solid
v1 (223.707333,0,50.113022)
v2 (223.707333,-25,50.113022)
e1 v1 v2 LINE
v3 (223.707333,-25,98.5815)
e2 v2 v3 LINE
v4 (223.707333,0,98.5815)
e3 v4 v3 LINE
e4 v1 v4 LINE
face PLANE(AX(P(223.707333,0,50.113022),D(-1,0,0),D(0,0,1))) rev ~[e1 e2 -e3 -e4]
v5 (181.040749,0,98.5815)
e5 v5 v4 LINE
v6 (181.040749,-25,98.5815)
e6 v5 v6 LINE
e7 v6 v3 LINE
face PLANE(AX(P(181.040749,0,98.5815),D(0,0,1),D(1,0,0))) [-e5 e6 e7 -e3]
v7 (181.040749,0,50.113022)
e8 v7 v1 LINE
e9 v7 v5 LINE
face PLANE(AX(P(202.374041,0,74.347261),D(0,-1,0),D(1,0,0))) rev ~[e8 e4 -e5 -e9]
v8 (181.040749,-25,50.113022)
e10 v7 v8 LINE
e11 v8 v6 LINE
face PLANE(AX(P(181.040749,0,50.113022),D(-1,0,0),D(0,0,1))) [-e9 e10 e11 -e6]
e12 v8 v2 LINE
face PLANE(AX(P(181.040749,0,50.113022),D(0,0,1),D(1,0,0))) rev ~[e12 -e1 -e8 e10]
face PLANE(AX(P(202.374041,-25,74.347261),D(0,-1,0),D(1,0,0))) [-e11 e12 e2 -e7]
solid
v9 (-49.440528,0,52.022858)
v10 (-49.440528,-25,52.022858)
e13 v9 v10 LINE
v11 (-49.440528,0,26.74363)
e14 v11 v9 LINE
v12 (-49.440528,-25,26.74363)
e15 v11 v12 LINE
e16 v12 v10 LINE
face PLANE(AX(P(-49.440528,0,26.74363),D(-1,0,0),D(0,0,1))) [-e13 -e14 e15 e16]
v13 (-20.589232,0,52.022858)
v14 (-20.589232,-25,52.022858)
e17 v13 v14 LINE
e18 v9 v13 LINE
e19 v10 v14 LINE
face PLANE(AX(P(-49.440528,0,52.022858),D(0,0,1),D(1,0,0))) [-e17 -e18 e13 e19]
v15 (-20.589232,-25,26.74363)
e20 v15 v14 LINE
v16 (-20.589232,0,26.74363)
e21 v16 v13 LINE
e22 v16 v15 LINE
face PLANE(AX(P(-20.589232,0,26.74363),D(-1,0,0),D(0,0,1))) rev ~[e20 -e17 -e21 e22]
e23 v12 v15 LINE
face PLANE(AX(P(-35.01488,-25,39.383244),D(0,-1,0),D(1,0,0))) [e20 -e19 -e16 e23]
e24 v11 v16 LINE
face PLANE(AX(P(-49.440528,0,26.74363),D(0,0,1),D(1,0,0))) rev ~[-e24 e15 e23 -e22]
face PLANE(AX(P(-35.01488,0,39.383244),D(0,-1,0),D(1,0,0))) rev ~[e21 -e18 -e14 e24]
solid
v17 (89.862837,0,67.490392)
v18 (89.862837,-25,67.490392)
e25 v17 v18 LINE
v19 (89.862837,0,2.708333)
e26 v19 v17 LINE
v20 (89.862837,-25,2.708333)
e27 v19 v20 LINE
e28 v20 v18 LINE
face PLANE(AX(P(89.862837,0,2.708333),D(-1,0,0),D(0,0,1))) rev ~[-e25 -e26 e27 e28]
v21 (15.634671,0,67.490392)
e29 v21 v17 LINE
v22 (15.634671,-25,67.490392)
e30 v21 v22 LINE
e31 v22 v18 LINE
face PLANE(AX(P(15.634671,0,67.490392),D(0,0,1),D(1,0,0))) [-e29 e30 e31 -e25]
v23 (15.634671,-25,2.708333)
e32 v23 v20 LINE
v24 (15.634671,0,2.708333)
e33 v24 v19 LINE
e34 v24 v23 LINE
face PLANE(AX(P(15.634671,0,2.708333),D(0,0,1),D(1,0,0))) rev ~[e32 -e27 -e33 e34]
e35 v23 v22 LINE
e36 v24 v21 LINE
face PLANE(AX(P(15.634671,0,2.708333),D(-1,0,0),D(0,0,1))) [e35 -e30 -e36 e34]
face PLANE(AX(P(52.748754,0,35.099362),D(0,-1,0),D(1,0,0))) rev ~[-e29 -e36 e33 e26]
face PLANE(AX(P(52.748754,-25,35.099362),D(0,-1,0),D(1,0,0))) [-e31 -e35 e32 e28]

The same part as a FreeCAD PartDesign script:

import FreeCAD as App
import Part
import Sketcher
from FreeCAD import Vector

doc = App.newDocument("Part")
body = doc.addObject("PartDesign::Body", "Body")

# Sketch on XZ plane
sketch1 = body.newObject("Sketcher::SketchObject", "Sketch")
sketch1.AttachmentSupport = (doc.getObject("XZ_Plane"), [""])
sketch1.MapMode = "FlatFace"
sketch1.addGeometry(Part.LineSegment(Vector(-49, 52, 0), Vector(-49, 27, 0)), False)
sketch1.addGeometry(Part.LineSegment(Vector(-49, 27, 0), Vector(-21, 27, 0)), False)
sketch1.addGeometry(Part.LineSegment(Vector(-21, 27, 0), Vector(-21, 52, 0)), False)
sketch1.addGeometry(Part.LineSegment(Vector(-21, 52, 0), Vector(-49, 52, 0)), False)
sketch1.addConstraint(Sketcher.Constraint("Coincident", 0, 2, 1, 1))
sketch1.addConstraint(Sketcher.Constraint("Coincident", 1, 2, 2, 1))
sketch1.addConstraint(Sketcher.Constraint("Coincident", 2, 2, 3, 1))
sketch1.addConstraint(Sketcher.Constraint("Coincident", 3, 2, 0, 1))
sketch1.addConstraint(Sketcher.Constraint("Vertical", 0))
sketch1.addConstraint(Sketcher.Constraint("Horizontal", 1))
sketch1.addConstraint(Sketcher.Constraint("Vertical", 2))
sketch1.addConstraint(Sketcher.Constraint("Horizontal", 3))
sketch1.addConstraint(Sketcher.Constraint("DistanceY", 0, 2, 0, 1, 25.279229))
sketch1.addConstraint(Sketcher.Constraint("DistanceX", 1, 1, 1, 2, 28.851297))
sketch1.addConstraint(Sketcher.Constraint("DistanceX", 0, 2, -1, 1, 49.440528))
sketch1.addConstraint(Sketcher.Constraint("DistanceY", -1, 1, 0, 2, 26.74363))
pad1 = body.newObject("PartDesign::Pad", "Pad")
pad1.Profile = sketch1
pad1.Length = 25
body2 = doc.addObject("PartDesign::Body", "Body001")
body2.AllowCompound = True

# Sketch on XZ plane
sketch2 = body2.newObject("Sketcher::SketchObject", "Sketch001")
sketch2.AttachmentSupport = (doc.getObject("XZ_Plane001"), [""])
sketch2.MapMode = "FlatFace"
sketch2.addGeometry(Part.LineSegment(Vector(16, 67, 0), Vector(16, 3, 0)), False)
sketch2.addGeometry(Part.LineSegment(Vector(16, 3, 0), Vector(90, 3, 0)), False)
sketch2.addGeometry(Part.LineSegment(Vector(90, 3, 0), Vector(90, 67, 0)), False)
sketch2.addGeometry(Part.LineSegment(Vector(90, 67, 0), Vector(16, 67, 0)), False)
sketch2.addGeometry(Part.LineSegment(Vector(181, 99, 0), Vector(181, 50, 0)), False)
sketch2.addGeometry(Part.LineSegment(Vector(181, 50, 0), Vector(224, 50, 0)), False)
sketch2.addGeometry(Part.LineSegment(Vector(224, 50, 0), Vector(224, 99, 0)), False)
sketch2.addGeometry(Part.LineSegment(Vector(224, 99, 0), Vector(181, 99, 0)), False)
sketch2.addConstraint(Sketcher.Constraint("Coincident", 0, 2, 1, 1))
sketch2.addConstraint(Sketcher.Constraint("Coincident", 1, 2, 2, 1))
sketch2.addConstraint(Sketcher.Constraint("Coincident", 2, 2, 3, 1))
sketch2.addConstraint(Sketcher.Constraint("Coincident", 3, 2, 0, 1))
sketch2.addConstraint(Sketcher.Constraint("Coincident", 4, 2, 5, 1))
sketch2.addConstraint(Sketcher.Constraint("Coincident", 5, 2, 6, 1))
sketch2.addConstraint(Sketcher.Constraint("Coincident", 6, 2, 7, 1))
sketch2.addConstraint(Sketcher.Constraint("Coincident", 7, 2, 4, 1))
sketch2.addConstraint(Sketcher.Constraint("Vertical", 0))
sketch2.addConstraint(Sketcher.Constraint("Horizontal", 1))
sketch2.addConstraint(Sketcher.Constraint("Vertical", 2))
sketch2.addConstraint(Sketcher.Constraint("Horizontal", 3))
sketch2.addConstraint(Sketcher.Constraint("Vertical", 4))
sketch2.addConstraint(Sketcher.Constraint("Horizontal", 5))
sketch2.addConstraint(Sketcher.Constraint("Vertical", 6))
sketch2.addConstraint(Sketcher.Constraint("Horizontal", 7))
sketch2.addConstraint(Sketcher.Constraint("DistanceY", 0, 2, 0, 1, 64.782059))
sketch2.addConstraint(Sketcher.Constraint("DistanceY", 4, 2, 4, 1, 48.468478))
sketch2.addConstraint(Sketcher.Constraint("DistanceY", -1, 1, 6, 2, 98.5815))
sketch2.addConstraint(Sketcher.Constraint("DistanceX", 1, 1, 1, 2, 74.228167))
sketch2.addConstraint(Sketcher.Constraint("DistanceX", 5, 1, 5, 2, 42.666584))
sketch2.addConstraint(Sketcher.Constraint("DistanceX", -1, 1, 0, 2, 15.634671))
sketch2.addConstraint(Sketcher.Constraint("DistanceY", -1, 1, 2, 2, 67.490392))
sketch2.addConstraint(Sketcher.Constraint("DistanceX", -1, 1, 4, 2, 181.040749))
pad2 = body2.newObject("PartDesign::Pad", "Pad001")
pad2.Profile = sketch2
pad2.Length = 25

doc.recompute()
